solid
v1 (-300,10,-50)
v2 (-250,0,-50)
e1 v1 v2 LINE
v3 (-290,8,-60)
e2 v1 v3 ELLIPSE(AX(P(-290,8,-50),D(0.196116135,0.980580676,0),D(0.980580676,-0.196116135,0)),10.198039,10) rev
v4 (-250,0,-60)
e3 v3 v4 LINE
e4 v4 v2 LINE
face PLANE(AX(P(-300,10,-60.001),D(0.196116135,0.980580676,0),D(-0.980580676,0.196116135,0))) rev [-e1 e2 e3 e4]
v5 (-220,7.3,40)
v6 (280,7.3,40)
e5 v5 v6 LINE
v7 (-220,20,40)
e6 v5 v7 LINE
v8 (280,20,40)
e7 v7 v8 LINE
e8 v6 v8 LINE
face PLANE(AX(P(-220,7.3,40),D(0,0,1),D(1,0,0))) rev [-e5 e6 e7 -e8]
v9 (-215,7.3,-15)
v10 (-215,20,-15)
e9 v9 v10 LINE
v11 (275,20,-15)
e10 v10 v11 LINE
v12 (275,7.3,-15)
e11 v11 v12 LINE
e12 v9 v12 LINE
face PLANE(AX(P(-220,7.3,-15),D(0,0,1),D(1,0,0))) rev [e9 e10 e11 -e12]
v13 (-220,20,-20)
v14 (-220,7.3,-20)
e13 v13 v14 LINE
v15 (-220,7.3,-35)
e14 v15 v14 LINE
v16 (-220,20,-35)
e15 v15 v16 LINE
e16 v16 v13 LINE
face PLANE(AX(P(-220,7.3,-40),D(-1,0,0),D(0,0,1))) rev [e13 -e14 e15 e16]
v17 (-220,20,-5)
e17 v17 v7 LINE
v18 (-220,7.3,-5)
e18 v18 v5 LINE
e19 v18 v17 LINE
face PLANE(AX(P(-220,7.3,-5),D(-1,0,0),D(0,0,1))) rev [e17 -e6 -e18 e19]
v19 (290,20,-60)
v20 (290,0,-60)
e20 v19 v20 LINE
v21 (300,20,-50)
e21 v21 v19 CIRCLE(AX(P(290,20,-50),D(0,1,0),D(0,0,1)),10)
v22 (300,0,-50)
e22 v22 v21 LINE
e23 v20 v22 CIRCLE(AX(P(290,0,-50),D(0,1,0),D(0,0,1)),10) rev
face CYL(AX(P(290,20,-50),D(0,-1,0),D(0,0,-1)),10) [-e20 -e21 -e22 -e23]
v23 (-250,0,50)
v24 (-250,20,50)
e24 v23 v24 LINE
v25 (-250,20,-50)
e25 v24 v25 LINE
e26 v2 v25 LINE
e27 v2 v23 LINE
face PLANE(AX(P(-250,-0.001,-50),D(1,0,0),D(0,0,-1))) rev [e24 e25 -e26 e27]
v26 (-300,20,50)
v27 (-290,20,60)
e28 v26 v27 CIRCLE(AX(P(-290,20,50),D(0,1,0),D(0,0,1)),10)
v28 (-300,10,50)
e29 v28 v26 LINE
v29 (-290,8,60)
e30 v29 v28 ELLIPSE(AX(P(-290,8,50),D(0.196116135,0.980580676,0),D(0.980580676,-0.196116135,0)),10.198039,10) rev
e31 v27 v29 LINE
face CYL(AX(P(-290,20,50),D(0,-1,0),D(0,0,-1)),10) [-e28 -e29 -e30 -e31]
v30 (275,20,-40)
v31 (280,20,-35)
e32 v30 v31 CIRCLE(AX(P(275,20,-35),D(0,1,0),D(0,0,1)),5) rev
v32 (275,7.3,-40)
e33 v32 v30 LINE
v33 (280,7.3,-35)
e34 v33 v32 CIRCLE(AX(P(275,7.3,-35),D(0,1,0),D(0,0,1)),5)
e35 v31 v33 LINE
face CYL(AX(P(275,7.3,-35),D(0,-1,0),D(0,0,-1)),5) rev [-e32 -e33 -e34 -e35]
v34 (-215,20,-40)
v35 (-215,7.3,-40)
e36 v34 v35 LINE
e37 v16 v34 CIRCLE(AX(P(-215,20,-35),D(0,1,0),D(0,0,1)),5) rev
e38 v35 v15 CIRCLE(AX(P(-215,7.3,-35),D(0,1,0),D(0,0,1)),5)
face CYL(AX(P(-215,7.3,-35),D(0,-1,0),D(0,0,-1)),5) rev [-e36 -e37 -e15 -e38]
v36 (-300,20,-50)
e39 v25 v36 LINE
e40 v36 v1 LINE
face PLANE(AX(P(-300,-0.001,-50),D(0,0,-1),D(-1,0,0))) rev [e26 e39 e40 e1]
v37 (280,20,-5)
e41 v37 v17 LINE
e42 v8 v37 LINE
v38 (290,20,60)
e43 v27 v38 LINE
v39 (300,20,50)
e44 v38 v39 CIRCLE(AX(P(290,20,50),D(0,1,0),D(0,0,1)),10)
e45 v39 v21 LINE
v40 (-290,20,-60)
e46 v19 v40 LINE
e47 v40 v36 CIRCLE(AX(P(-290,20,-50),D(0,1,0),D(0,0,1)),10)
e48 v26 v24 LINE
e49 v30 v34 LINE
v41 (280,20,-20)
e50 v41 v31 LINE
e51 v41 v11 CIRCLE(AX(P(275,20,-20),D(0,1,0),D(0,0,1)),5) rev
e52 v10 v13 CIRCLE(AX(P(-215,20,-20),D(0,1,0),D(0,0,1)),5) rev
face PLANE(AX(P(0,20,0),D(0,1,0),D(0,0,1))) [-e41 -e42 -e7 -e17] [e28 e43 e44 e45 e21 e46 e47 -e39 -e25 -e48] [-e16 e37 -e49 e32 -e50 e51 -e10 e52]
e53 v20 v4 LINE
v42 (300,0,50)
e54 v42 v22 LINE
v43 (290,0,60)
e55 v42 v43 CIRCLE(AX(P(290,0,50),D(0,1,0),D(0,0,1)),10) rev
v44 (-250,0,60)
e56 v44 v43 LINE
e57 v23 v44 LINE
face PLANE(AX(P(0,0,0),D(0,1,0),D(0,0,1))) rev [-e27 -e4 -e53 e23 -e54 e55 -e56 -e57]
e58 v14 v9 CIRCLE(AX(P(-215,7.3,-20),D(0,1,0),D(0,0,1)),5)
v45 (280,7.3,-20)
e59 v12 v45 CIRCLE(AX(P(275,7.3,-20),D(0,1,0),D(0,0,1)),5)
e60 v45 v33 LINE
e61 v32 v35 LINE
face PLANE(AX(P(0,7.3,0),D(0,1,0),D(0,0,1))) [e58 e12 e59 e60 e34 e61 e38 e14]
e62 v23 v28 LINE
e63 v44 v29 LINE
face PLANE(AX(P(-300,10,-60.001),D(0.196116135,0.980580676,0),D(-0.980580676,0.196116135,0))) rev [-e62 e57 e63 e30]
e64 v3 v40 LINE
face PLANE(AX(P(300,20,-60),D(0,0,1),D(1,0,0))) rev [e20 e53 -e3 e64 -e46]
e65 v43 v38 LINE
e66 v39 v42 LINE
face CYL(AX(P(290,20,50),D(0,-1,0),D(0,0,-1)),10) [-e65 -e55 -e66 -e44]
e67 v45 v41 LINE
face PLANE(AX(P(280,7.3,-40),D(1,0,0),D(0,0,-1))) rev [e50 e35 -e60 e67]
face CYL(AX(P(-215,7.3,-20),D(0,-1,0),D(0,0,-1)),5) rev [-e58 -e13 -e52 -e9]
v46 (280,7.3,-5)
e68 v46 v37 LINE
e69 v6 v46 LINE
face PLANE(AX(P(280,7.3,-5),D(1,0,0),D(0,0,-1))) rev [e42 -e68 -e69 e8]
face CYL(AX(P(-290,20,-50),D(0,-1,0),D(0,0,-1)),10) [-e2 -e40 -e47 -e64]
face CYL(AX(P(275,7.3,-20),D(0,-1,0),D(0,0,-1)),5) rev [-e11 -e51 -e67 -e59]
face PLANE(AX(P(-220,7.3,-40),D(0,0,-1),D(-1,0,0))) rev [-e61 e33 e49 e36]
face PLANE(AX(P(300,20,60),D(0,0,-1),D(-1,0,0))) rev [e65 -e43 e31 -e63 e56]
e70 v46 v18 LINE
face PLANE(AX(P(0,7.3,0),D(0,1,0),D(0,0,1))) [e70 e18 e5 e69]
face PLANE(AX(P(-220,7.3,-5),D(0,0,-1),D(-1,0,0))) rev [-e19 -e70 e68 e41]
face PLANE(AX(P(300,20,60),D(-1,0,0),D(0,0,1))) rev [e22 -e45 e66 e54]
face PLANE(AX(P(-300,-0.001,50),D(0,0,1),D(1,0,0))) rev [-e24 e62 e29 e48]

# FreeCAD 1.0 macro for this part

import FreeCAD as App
import Part
import Sketcher

V = App.Vector


def edges_at(feature, points):
    """Names of the edges that pass closest to the given points."""
    edges = feature.Shape.Edges
    near = lambda p: min(range(len(edges)), key=lambda i: edges[i].distToShape(Part.Vertex(*p))[0])
    return sorted({f"Edge{near(p) + 1}" for p in points})

doc = App.newDocument("Part")
body = doc.addObject("PartDesign::Body", "Body")

# Sketch on XZ plane
sketch1 = body.newObject("Sketcher::SketchObject", "Sketch")
sketch1.AttachmentSupport = (doc.getObject("XZ_Plane"), [""])
sketch1.MapMode = "FlatFace"
sketch1.addGeometry([
    Part.LineSegment(V(-300, -60, 0), V(-300, 60, 0)),
    Part.LineSegment(V(-300, 60, 0), V(300, 60, 0)),
    Part.LineSegment(V(300, 60, 0), V(300, -60, 0)),
    Part.LineSegment(V(300, -60, 0), V(-300, -60, 0)),
], False)
sketch1.addConstraint([
    Sketcher.Constraint("Coincident", 0, 2, 1, 1),
    Sketcher.Constraint("Coincident", 1, 2, 2, 1),
    Sketcher.Constraint("Coincident", 2, 2, 3, 1),
    Sketcher.Constraint("Coincident", 3, 2, 0, 1),
    Sketcher.Constraint("Vertical", 0),
    Sketcher.Constraint("Horizontal", 1),
    Sketcher.Constraint("Vertical", 2),
    Sketcher.Constraint("Horizontal", 3),
    Sketcher.Constraint("Symmetric", 0, 2, 2, 2, -1, 1),
    Sketcher.Constraint("DistanceX", 1, 1, 1, 2, 600.0),
    Sketcher.Constraint("DistanceY", 0, 1, 0, 2, 120.0),
])
pad1 = body.newObject("PartDesign::Pad", "Pad")
pad1.Profile = sketch1
pad1.Length = 20
pad1.Reversed = True

# Sketch on XY plane
sketch2 = body.newObject("Sketcher::SketchObject", "Sketch001")
sketch2.AttachmentSupport = (doc.getObject("XY_Plane"), [""])
sketch2.MapMode = "FlatFace"
sketch2.AttachmentOffset = App.Placement(V(0, 0, 60), App.Rotation())
sketch2.addGeometry([
    Part.LineSegment(V(-250, 0, 0), V(-300, 10, 0)),
    Part.LineSegment(V(-300, 10, 0), V(-300, 0, 0)),
    Part.LineSegment(V(-300, 0, 0), V(-250, 0, 0)),
], False)
sketch2.addConstraint([
    Sketcher.Constraint("Coincident", 0, 2, 1, 1),
    Sketcher.Constraint("Coincident", 1, 2, 2, 1),
    Sketcher.Constraint("Coincident", 2, 2, 0, 1),
    Sketcher.Constraint("Vertical", 1),
    Sketcher.Constraint("Horizontal", 2),
    Sketcher.Constraint("PointOnObject", 1, 2, -1),
    Sketcher.Constraint("DistanceX", 2, 1, 2, 2, 50.0),
    Sketcher.Constraint("DistanceY", 1, 2, 1, 1, 10.0),
    Sketcher.Constraint("DistanceX", 0, 2, -1, 1, 300.0),
])
pocket1 = body.newObject("PartDesign::Pocket", "Pocket")
pocket1.Profile = sketch2
pocket1.Type = "UpToFirst"

# Sketch on XZ plane
sketch3 = body.newObject("Sketcher::SketchObject", "Sketch002")
sketch3.AttachmentSupport = (doc.getObject("XZ_Plane"), [""])
sketch3.MapMode = "FlatFace"
sketch3.AttachmentOffset = App.Placement(V(0, 0, -20), App.Rotation())
sketch3.addGeometry([
    Part.LineSegment(V(-220, -40, 0), V(-220, -15, 0)),  # 0
    Part.LineSegment(V(-220, -15, 0), V(280, -15, 0)),  # 1
    Part.LineSegment(V(280, -15, 0), V(280, -40, 0)),  # 2
    Part.LineSegment(V(280, -40, 0), V(-220, -40, 0)),  # 3
    Part.LineSegment(V(-220, -5, 0), V(-220, 40, 0)),  # 4
    Part.LineSegment(V(-220, 40, 0), V(280, 40, 0)),  # 5
    Part.LineSegment(V(280, 40, 0), V(280, -5, 0)),  # 6
    Part.LineSegment(V(280, -5, 0), V(-220, -5, 0)),  # 7
], False)
sketch3.addConstraint([
    Sketcher.Constraint("Coincident", 0, 2, 1, 1),
    Sketcher.Constraint("Coincident", 1, 2, 2, 1),
    Sketcher.Constraint("Coincident", 2, 2, 3, 1),
    Sketcher.Constraint("Coincident", 3, 2, 0, 1),
    Sketcher.Constraint("Coincident", 4, 2, 5, 1),
    Sketcher.Constraint("Coincident", 5, 2, 6, 1),
    Sketcher.Constraint("Coincident", 6, 2, 7, 1),
    Sketcher.Constraint("Coincident", 7, 2, 4, 1),
    Sketcher.Constraint("Vertical", 0),
    Sketcher.Constraint("Horizontal", 1),
    Sketcher.Constraint("Vertical", 2),
    Sketcher.Constraint("Horizontal", 3),
    Sketcher.Constraint("Vertical", 4),
    Sketcher.Constraint("Horizontal", 5),
    Sketcher.Constraint("Vertical", 6),
    Sketcher.Constraint("Horizontal", 7),
    Sketcher.Constraint("Symmetric", 3, 2, 4, 2, -1),
    Sketcher.Constraint("Vertical", 2, 2, 5, 2),
    Sketcher.Constraint("DistanceX", 1, 1, 1, 2, 500.0),
    Sketcher.Constraint("DistanceY", 0, 1, 0, 2, 25.0),
    Sketcher.Constraint("DistanceY", 4, 1, 4, 2, 45.0),
    Sketcher.Constraint("DistanceX", 0, 2, -1, 1, 220.0),
    Sketcher.Constraint("DistanceY", 0, 2, -1, 1, 15.0),
])
pocket2 = body.newObject("PartDesign::Pocket", "Pocket001")
pocket2.Profile = sketch3
pocket2.Length = 12.7
pocket2.Reversed = True
doc.recompute()

fillet = body.newObject("PartDesign::Fillet", "Fillet")
fillet.Base = (pocket2, edges_at(pocket2, [
    (-300, 15, -60),
    (300, 10, -60),
    (300, 10, 60),
    (-300, 15, 60),
]))
fillet.Radius = 10
doc.recompute()

fillet2 = body.newObject("PartDesign::Fillet", "Fillet001")
fillet2.Base = (fillet, edges_at(fillet, [
    (-220, 13.65, -15),
    (-220, 13.65, -40),
    (280, 13.65, -40),
    (280, 13.65, -15),
]))
fillet2.Radius = 5

# Sketch on XZ plane
sketch4 = body.newObject("Sketcher::SketchObject", "Sketch003")
sketch4.AttachmentSupport = (doc.getObject("XZ_Plane"), [""])
sketch4.MapMode = "FlatFace"
sketch4.AttachmentOffset = App.Placement(V(0, 0, -20), App.Rotation())
sketch4.addGeometry([
    Part.LineSegment(V(-300, -50, 0), V(-300, 50, 0)),
    Part.LineSegment(V(-300, 50, 0), V(-250, 50, 0)),
    Part.LineSegment(V(-250, 50, 0), V(-250, -50, 0)),
    Part.LineSegment(V(-250, -50, 0), V(-300, -50, 0)),
], False)
sketch4.addConstraint([
    Sketcher.Constraint("Coincident", 0, 2, 1, 1),
    Sketcher.Constraint("Coincident", 1, 2, 2, 1),
    Sketcher.Constraint("Coincident", 2, 2, 3, 1),
    Sketcher.Constraint("Coincident", 3, 2, 0, 1),
    Sketcher.Constraint("Vertical", 0),
    Sketcher.Constraint("Horizontal", 1),
    Sketcher.Constraint("Vertical", 2),
    Sketcher.Constraint("Horizontal", 3),
    Sketcher.Constraint("DistanceX", 1, 1, 1, 2, 50.0),
    Sketcher.Constraint("DistanceY", 0, 1, 0, 2, 100.0),
    Sketcher.Constraint("DistanceX", 0, 2, -1, 1, 300.0),
    Sketcher.Constraint("DistanceY", -1, 1, 0, 2, 50.0),
])
pocket3 = body.newObject("PartDesign::Pocket", "Pocket002")
pocket3.Profile = sketch4
pocket3.Type = "UpToFirst"
pocket3.Reversed = True

doc.recompute()
